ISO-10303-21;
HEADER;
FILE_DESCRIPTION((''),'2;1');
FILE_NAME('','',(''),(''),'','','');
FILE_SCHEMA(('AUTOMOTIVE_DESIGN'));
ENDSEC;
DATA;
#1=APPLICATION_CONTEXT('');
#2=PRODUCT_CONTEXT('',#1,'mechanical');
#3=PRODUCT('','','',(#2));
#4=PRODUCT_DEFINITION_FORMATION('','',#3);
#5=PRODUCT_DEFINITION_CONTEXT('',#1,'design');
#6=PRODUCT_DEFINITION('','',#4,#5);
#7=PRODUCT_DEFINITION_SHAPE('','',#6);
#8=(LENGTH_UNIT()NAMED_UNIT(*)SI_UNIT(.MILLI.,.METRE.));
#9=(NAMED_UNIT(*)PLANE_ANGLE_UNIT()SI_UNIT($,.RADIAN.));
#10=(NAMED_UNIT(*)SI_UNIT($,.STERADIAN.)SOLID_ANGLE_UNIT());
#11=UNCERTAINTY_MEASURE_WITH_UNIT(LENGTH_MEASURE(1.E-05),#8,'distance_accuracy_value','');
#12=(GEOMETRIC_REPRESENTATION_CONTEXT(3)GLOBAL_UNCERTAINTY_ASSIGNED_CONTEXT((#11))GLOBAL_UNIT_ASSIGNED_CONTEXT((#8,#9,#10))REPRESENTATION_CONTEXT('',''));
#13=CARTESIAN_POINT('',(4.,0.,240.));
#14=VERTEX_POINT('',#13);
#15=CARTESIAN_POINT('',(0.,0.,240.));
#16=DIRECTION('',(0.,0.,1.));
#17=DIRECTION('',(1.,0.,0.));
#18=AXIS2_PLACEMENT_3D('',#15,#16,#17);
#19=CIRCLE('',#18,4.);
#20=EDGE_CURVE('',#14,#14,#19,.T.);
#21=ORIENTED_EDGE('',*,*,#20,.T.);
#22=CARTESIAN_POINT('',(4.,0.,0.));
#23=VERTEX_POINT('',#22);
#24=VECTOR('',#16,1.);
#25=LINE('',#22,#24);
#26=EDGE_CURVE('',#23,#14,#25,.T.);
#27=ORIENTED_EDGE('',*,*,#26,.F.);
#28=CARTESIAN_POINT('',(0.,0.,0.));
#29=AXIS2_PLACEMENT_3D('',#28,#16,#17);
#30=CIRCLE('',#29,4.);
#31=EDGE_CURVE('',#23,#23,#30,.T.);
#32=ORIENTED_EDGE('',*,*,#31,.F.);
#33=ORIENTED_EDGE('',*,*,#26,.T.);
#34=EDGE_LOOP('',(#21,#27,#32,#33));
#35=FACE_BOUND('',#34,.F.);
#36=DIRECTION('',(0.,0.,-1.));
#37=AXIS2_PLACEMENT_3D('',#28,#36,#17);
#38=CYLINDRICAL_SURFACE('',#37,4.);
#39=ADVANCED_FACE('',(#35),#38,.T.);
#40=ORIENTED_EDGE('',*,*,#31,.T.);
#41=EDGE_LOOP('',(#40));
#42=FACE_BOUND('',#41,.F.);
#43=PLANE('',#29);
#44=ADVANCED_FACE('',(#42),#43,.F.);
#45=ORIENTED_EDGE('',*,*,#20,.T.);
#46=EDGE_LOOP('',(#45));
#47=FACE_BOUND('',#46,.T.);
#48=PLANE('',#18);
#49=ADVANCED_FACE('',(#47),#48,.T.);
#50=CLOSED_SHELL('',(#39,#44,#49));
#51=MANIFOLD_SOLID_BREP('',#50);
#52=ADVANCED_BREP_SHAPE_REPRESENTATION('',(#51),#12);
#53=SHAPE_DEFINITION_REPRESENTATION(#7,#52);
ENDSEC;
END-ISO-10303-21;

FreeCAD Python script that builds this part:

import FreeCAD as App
import Part
import Sketcher

V = App.Vector
Q = App.Units.Quantity

doc = App.newDocument("Part")
body = doc.addObject("PartDesign::Body", "Body")

sketch1 = body.newObject("Sketcher::SketchObject", "Sketch")
sketch1.AttachmentSupport = (doc.getObject("XY_Plane"), [""])
sketch1.MapMode = "FlatFace"
sketch1.addGeometry(Part.Circle(V(0, 0, 0), V(0, 0, 1), 4), False)
sketch1.addConstraint([
    Sketcher.Constraint("Coincident", 0, 3, -1, 1),
    Sketcher.Constraint("Diameter", 0, Q("8 mm")),
])
pad1 = body.newObject("PartDesign::Pad", "Pad")
pad1.Profile = sketch1
pad1.Length = 240

doc.recompute()
